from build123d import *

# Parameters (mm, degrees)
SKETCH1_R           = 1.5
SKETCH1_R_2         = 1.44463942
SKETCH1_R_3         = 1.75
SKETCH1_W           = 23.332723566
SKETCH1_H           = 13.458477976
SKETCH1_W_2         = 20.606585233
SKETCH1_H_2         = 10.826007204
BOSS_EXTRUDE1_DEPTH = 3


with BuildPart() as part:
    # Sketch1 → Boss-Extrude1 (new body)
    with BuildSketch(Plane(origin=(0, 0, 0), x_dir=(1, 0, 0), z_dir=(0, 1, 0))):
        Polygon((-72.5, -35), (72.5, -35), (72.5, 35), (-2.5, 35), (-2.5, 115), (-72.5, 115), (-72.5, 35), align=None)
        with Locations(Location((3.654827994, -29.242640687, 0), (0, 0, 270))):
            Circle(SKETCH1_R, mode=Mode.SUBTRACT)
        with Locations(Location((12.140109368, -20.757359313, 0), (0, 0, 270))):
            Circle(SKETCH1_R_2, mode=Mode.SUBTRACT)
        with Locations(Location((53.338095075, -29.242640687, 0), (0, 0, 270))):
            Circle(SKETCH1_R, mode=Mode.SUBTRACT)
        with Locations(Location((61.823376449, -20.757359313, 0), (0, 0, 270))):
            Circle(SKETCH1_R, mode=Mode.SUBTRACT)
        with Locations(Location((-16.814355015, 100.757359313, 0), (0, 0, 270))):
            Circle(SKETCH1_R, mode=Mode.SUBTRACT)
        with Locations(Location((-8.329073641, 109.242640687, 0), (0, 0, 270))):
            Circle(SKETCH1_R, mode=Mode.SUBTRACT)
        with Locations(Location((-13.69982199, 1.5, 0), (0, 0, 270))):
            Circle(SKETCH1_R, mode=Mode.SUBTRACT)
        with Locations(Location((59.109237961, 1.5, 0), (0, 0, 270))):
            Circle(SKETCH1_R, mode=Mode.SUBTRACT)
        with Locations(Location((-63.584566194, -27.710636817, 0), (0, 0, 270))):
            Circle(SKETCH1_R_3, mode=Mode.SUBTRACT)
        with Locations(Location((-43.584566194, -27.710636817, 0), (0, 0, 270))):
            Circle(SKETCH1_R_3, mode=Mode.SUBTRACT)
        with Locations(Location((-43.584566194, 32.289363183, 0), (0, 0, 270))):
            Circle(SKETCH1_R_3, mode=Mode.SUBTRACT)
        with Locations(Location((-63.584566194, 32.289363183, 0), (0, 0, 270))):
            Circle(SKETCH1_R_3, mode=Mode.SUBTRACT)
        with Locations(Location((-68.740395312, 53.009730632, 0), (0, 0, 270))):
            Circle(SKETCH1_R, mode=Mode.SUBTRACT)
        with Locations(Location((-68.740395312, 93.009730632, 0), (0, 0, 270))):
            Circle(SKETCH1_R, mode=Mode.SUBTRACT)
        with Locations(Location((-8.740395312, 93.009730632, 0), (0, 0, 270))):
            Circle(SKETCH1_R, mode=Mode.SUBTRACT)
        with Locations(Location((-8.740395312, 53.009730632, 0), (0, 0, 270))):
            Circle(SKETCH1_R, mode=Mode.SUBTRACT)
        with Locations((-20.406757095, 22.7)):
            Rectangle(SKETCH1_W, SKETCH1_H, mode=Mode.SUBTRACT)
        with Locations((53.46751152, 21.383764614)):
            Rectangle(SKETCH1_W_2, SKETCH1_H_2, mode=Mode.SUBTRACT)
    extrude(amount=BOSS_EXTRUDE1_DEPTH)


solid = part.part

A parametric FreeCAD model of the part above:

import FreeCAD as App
import Part
import Sketcher


def add_polygon(sketch, points):
    """Adds a closed chain of lines whose ends are joined by coincident constraints."""
    first, n = sketch.GeometryCount, len(points)
    for a, b in zip(points, points[1:] + points[:1]):
        sketch.addGeometry(Part.LineSegment(App.Vector(*a, 0), App.Vector(*b, 0)), False)
    for i in range(n):
        sketch.addConstraint(Sketcher.Constraint("Coincident", first + i, 2, first + (i + 1) % n, 1))

doc = App.newDocument("Part")
body = doc.addObject("PartDesign::Body", "Body")

sketch1 = body.newObject("Sketcher::SketchObject", "Sketch")
sketch1.AttachmentSupport = (doc.getObject("XZ_Plane"), [""])
sketch1.MapMode = "FlatFace"
add_polygon(sketch1, [(-72.5, 35), (72.5, 35), (72.5, -35), (-2.5, -35), (-2.5, -115), (-72.5, -115)])
sketch1.addGeometry(Part.Circle(App.Vector(-63.6, 27.7, 0), App.Vector(0, 0, 1), 1.8), False)
sketch1.addGeometry(Part.Circle(App.Vector(-43.6, 27.7, 0), App.Vector(0, 0, 1), 1.8), False)
sketch1.addGeometry(Part.Circle(App.Vector(-13.7, -1.5, 0), App.Vector(0, 0, 1), 1.5), False)
sketch1.addGeometry(Part.Circle(App.Vector(-63.6, -32.3, 0), App.Vector(0, 0, 1), 1.8), False)
sketch1.addGeometry(Part.Circle(App.Vector(-43.6, -32.3, 0), App.Vector(0, 0, 1), 1.8), False)
add_polygon(sketch1, [(-8.7, -16), (-32.1, -16), (-32.1, -29.4), (-8.7, -29.4)])
sketch1.addGeometry(Part.Circle(App.Vector(3.7, 29.2, 0), App.Vector(0, 0, 1), 1.5), False)
sketch1.addGeometry(Part.Circle(App.Vector(12.1, 20.8, 0), App.Vector(0, 0, 1), 1.4), False)
sketch1.addGeometry(Part.Circle(App.Vector(53.3, 29.2, 0), App.Vector(0, 0, 1), 1.5), False)
sketch1.addGeometry(Part.Circle(App.Vector(61.8, 20.8, 0), App.Vector(0, 0, 1), 1.5), False)
sketch1.addGeometry(Part.Circle(App.Vector(59.1, -1.5, 0), App.Vector(0, 0, 1), 1.5), False)
add_polygon(sketch1, [(63.8, -16), (43.2, -16), (43.2, -26.8), (63.8, -26.8)])
sketch1.addGeometry(Part.Circle(App.Vector(-68.7, -53, 0), App.Vector(0, 0, 1), 1.5), False)
sketch1.addGeometry(Part.Circle(App.Vector(-8.7, -53, 0), App.Vector(0, 0, 1), 1.5), False)
sketch1.addGeometry(Part.Circle(App.Vector(-68.7, -93, 0), App.Vector(0, 0, 1), 1.5), False)
sketch1.addGeometry(Part.Circle(App.Vector(-8.7, -93, 0), App.Vector(0, 0, 1), 1.5), False)
sketch1.addGeometry(Part.Circle(App.Vector(-16.8, -100.8, 0), App.Vector(0, 0, 1), 1.5), False)
sketch1.addGeometry(Part.Circle(App.Vector(-8.3, -109.2, 0), App.Vector(0, 0, 1), 1.5), False)
sketch1.addConstraint([
    Sketcher.Constraint("Horizontal", 0),
    Sketcher.Constraint("Vertical", 1),
    Sketcher.Constraint("Horizontal", 2),
    Sketcher.Constraint("Vertical", 3),
    Sketcher.Constraint("Horizontal", 4),
    Sketcher.Constraint("Vertical", 5),
    Sketcher.Constraint("Horizontal", 11),
    Sketcher.Constraint("Vertical", 12),
    Sketcher.Constraint("Horizontal", 13),
    Sketcher.Constraint("Vertical", 14),
    Sketcher.Constraint("Horizontal", 20),
    Sketcher.Constraint("Vertical", 21),
    Sketcher.Constraint("Horizontal", 22),
    Sketcher.Constraint("Vertical", 23),
    Sketcher.Constraint("Equal", 6, 7),
    Sketcher.Constraint("Equal", 7, 9),
    Sketcher.Constraint("Equal", 9, 10),
    Sketcher.Constraint("Equal", 8, 15),
    Sketcher.Constraint("Equal", 15, 17),
    Sketcher.Constraint("Equal", 17, 18),
    Sketcher.Constraint("Equal", 18, 19),
    Sketcher.Constraint("Equal", 19, 24),
    Sketcher.Constraint("Equal", 24, 25),
    Sketcher.Constraint("Equal", 25, 26),
    Sketcher.Constraint("Equal", 26, 27),
    Sketcher.Constraint("Equal", 27, 28),
    Sketcher.Constraint("Equal", 28, 29),
    Sketcher.Constraint("Symmetric", 1, 2, 5, 2, -1, 1),
    Sketcher.Constraint("Horizontal", 6, 3, 7, 3),
    Sketcher.Constraint("Horizontal", 9, 3, 10, 3),
    Sketcher.Constraint("Horizontal", 15, 3, 17, 3),
    Sketcher.Constraint("Horizontal", 16, 3, 18, 3),
    Sketcher.Constraint("Horizontal", 8, 3, 19, 3),
    Sketcher.Constraint("Horizontal", 24, 3, 25, 3),
    Sketcher.Constraint("Horizontal", 26, 3, 27, 3),
    Sketcher.Constraint("Horizontal", 14, 2, 20, 2),
    Sketcher.Constraint("Vertical", 6, 3, 9, 3),
    Sketcher.Constraint("Vertical", 7, 3, 10, 3),
    Sketcher.Constraint("Vertical", 24, 3, 26, 3),
    Sketcher.Constraint("Vertical", 25, 3, 27, 3),
    Sketcher.Constraint("Vertical", 27, 3, 13, 2),
    Sketcher.Constraint("Equal", 4, 1),
    Sketcher.Constraint("Diameter", 8, 3.0),
    Sketcher.Constraint("Diameter", 6, 3.5),
    Sketcher.Constraint("DistanceX", 0, 1, 0, 2, 145.0),
    Sketcher.Constraint("DistanceX", 2, 2, 2, 1, 75.0),
    Sketcher.Constraint("DistanceY", 3, 2, 3, 1, 80.0),
    Sketcher.Constraint("DistanceX", 6, 3, 7, 3, 20.0),
    Sketcher.Constraint("DistanceY", 9, 3, 6, 3, 60.0),
    Sketcher.Constraint("DistanceX", 24, 3, 25, 3, 60.0),
    Sketcher.Constraint("DistanceY", 26, 3, 24, 3, 40.0),
    Sketcher.Constraint("DistanceY", 8, 3, -1, 1, 1.5),
    Sketcher.Constraint("Diameter", 16, 2.889279),
    Sketcher.Constraint("DistanceX", 8, 3, 18, 3, 75.523198),
    Sketcher.Constraint("DistanceY", 20, 2, 17, 3, 45.213402),
    Sketcher.Constraint("DistanceX", 11, 2, 11, 1, 23.332724),
    Sketcher.Constraint("DistanceX", 20, 2, 20, 1, 20.606585),
    Sketcher.Constraint("DistanceY", 12, 2, 12, 1, 13.458478),
    Sketcher.Constraint("DistanceY", 21, 2, 21, 1, 10.826007),
    Sketcher.Constraint("DistanceX", 8, 3, -1, 1, 13.699822),
    Sketcher.Constraint("DistanceY", -1, 1, 15, 3, 29.242641),
    Sketcher.Constraint("DistanceX", -1, 1, 16, 3, 12.140109),
    Sketcher.Constraint("DistanceY", -1, 1, 16, 3, 20.757359),
    Sketcher.Constraint("DistanceY", 24, 3, -1, 1, 53.009731),
    Sketcher.Constraint("DistanceY", 28, 3, -1, 1, 100.757359),
    Sketcher.Constraint("DistanceY", 29, 3, -1, 1, 109.242641),
    Sketcher.Constraint("DistanceX", 11, 2, -1, 1, 32.073119),
    Sketcher.Constraint("DistanceX", -1, 1, 20, 2, 43.164219),
    Sketcher.Constraint("DistanceX", 8, 3, 15, 3, 17.35465),
    Sketcher.Constraint("DistanceX", 7, 3, 17, 3, 96.922661),
    Sketcher.Constraint("DistanceX", 17, 3, 18, 3, 8.485281),
    Sketcher.Constraint("DistanceX", 19, 3, 18, 3, 2.714138),
    Sketcher.Constraint("DistanceX", 28, 3, 27, 3, 8.07396),
    Sketcher.Constraint("DistanceX", 28, 3, 29, 3, 8.485281),
    Sketcher.Constraint("DistanceY", -1, 1, 6, 3, 27.710637),
])
pad1 = body.newObject("PartDesign::Pad", "Pad")
pad1.Profile = sketch1
pad1.Length = 3
pad1.Reversed = True

doc.recompute()
